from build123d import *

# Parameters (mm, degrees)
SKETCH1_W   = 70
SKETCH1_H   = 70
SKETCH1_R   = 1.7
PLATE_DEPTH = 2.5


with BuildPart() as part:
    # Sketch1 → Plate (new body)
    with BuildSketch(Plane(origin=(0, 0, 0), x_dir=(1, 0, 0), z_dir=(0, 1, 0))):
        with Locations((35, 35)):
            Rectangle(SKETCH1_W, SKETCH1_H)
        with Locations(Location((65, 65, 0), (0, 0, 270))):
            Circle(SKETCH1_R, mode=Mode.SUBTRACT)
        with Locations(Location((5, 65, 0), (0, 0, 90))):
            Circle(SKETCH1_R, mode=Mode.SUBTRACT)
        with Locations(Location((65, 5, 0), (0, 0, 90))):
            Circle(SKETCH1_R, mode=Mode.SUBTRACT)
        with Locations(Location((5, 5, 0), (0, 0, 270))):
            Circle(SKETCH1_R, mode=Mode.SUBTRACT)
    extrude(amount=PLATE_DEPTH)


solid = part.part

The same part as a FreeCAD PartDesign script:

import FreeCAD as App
import Part
import Sketcher

V = App.Vector
Q = App.Units.Quantity


def add_polygon(sketch, points):
    """Adds a closed chain of lines whose ends are joined by coincident constraints."""
    first, n = sketch.GeometryCount, len(points)
    for a, b in zip(points, points[1:] + points[:1]):
        sketch.addGeometry(Part.LineSegment(App.Vector(*a, 0), App.Vector(*b, 0)), False)
    for i in range(n):
        sketch.addConstraint(Sketcher.Constraint("Coincident", first + i, 2, first + (i + 1) % n, 1))

doc = App.newDocument("Part")
body = doc.addObject("PartDesign::Body", "Body")

sketch1 = body.newObject("Sketcher::SketchObject", "Sketch")
sketch1.AttachmentSupport = (doc.getObject("XZ_Plane"), [""])
sketch1.MapMode = "FlatFace"
add_polygon(sketch1, [(0, -70), (0, 0), (70, 0), (70, -70)])
sketch1.addGeometry(Part.Circle(V(5, -5, 0), V(0, 0, 1), 1.7), False)
sketch1.addGeometry(Part.Circle(V(65, -5, 0), V(0, 0, 1), 1.7), False)
sketch1.addGeometry(Part.Circle(V(5, -65, 0), V(0, 0, 1), 1.7), False)
sketch1.addGeometry(Part.Circle(V(65, -65, 0), V(0, 0, 1), 1.7), False)
sketch1.addConstraint([
    Sketcher.Constraint("Vertical", 0),
    Sketcher.Constraint("Horizontal", 1),
    Sketcher.Constraint("Vertical", 2),
    Sketcher.Constraint("Horizontal", 3),
    Sketcher.Constraint("Coincident", 0, 2, -1, 1),
    Sketcher.Constraint("Equal", 4, 5),
    Sketcher.Constraint("Equal", 5, 6),
    Sketcher.Constraint("Equal", 6, 7),
    Sketcher.Constraint("Horizontal", 4, 3, 5, 3),
    Sketcher.Constraint("Horizontal", 6, 3, 7, 3),
    Sketcher.Constraint("Vertical", 4, 3, 6, 3),
    Sketcher.Constraint("Vertical", 5, 3, 7, 3),
    Sketcher.Constraint("Equal", 3, 0),
    Sketcher.Constraint("Diameter", 4, Q("3.4 mm")),
    Sketcher.Constraint("DistanceX", 1, 1, 1, 2, Q("70 mm")),
    Sketcher.Constraint("DistanceX", -1, 1, 4, 3, Q("5 mm")),
    Sketcher.Constraint("DistanceY", 4, 3, -1, 1, Q("5 mm")),
    Sketcher.Constraint("DistanceX", -1, 1, 5, 3, Q("65 mm")),
    Sketcher.Constraint("DistanceY", 6, 3, -1, 1, Q("65 mm")),
])
pad1 = body.newObject("PartDesign::Pad", "Pad")
pad1.Profile = sketch1
pad1.Length = 2.5
pad1.Reversed = True

doc.recompute()
